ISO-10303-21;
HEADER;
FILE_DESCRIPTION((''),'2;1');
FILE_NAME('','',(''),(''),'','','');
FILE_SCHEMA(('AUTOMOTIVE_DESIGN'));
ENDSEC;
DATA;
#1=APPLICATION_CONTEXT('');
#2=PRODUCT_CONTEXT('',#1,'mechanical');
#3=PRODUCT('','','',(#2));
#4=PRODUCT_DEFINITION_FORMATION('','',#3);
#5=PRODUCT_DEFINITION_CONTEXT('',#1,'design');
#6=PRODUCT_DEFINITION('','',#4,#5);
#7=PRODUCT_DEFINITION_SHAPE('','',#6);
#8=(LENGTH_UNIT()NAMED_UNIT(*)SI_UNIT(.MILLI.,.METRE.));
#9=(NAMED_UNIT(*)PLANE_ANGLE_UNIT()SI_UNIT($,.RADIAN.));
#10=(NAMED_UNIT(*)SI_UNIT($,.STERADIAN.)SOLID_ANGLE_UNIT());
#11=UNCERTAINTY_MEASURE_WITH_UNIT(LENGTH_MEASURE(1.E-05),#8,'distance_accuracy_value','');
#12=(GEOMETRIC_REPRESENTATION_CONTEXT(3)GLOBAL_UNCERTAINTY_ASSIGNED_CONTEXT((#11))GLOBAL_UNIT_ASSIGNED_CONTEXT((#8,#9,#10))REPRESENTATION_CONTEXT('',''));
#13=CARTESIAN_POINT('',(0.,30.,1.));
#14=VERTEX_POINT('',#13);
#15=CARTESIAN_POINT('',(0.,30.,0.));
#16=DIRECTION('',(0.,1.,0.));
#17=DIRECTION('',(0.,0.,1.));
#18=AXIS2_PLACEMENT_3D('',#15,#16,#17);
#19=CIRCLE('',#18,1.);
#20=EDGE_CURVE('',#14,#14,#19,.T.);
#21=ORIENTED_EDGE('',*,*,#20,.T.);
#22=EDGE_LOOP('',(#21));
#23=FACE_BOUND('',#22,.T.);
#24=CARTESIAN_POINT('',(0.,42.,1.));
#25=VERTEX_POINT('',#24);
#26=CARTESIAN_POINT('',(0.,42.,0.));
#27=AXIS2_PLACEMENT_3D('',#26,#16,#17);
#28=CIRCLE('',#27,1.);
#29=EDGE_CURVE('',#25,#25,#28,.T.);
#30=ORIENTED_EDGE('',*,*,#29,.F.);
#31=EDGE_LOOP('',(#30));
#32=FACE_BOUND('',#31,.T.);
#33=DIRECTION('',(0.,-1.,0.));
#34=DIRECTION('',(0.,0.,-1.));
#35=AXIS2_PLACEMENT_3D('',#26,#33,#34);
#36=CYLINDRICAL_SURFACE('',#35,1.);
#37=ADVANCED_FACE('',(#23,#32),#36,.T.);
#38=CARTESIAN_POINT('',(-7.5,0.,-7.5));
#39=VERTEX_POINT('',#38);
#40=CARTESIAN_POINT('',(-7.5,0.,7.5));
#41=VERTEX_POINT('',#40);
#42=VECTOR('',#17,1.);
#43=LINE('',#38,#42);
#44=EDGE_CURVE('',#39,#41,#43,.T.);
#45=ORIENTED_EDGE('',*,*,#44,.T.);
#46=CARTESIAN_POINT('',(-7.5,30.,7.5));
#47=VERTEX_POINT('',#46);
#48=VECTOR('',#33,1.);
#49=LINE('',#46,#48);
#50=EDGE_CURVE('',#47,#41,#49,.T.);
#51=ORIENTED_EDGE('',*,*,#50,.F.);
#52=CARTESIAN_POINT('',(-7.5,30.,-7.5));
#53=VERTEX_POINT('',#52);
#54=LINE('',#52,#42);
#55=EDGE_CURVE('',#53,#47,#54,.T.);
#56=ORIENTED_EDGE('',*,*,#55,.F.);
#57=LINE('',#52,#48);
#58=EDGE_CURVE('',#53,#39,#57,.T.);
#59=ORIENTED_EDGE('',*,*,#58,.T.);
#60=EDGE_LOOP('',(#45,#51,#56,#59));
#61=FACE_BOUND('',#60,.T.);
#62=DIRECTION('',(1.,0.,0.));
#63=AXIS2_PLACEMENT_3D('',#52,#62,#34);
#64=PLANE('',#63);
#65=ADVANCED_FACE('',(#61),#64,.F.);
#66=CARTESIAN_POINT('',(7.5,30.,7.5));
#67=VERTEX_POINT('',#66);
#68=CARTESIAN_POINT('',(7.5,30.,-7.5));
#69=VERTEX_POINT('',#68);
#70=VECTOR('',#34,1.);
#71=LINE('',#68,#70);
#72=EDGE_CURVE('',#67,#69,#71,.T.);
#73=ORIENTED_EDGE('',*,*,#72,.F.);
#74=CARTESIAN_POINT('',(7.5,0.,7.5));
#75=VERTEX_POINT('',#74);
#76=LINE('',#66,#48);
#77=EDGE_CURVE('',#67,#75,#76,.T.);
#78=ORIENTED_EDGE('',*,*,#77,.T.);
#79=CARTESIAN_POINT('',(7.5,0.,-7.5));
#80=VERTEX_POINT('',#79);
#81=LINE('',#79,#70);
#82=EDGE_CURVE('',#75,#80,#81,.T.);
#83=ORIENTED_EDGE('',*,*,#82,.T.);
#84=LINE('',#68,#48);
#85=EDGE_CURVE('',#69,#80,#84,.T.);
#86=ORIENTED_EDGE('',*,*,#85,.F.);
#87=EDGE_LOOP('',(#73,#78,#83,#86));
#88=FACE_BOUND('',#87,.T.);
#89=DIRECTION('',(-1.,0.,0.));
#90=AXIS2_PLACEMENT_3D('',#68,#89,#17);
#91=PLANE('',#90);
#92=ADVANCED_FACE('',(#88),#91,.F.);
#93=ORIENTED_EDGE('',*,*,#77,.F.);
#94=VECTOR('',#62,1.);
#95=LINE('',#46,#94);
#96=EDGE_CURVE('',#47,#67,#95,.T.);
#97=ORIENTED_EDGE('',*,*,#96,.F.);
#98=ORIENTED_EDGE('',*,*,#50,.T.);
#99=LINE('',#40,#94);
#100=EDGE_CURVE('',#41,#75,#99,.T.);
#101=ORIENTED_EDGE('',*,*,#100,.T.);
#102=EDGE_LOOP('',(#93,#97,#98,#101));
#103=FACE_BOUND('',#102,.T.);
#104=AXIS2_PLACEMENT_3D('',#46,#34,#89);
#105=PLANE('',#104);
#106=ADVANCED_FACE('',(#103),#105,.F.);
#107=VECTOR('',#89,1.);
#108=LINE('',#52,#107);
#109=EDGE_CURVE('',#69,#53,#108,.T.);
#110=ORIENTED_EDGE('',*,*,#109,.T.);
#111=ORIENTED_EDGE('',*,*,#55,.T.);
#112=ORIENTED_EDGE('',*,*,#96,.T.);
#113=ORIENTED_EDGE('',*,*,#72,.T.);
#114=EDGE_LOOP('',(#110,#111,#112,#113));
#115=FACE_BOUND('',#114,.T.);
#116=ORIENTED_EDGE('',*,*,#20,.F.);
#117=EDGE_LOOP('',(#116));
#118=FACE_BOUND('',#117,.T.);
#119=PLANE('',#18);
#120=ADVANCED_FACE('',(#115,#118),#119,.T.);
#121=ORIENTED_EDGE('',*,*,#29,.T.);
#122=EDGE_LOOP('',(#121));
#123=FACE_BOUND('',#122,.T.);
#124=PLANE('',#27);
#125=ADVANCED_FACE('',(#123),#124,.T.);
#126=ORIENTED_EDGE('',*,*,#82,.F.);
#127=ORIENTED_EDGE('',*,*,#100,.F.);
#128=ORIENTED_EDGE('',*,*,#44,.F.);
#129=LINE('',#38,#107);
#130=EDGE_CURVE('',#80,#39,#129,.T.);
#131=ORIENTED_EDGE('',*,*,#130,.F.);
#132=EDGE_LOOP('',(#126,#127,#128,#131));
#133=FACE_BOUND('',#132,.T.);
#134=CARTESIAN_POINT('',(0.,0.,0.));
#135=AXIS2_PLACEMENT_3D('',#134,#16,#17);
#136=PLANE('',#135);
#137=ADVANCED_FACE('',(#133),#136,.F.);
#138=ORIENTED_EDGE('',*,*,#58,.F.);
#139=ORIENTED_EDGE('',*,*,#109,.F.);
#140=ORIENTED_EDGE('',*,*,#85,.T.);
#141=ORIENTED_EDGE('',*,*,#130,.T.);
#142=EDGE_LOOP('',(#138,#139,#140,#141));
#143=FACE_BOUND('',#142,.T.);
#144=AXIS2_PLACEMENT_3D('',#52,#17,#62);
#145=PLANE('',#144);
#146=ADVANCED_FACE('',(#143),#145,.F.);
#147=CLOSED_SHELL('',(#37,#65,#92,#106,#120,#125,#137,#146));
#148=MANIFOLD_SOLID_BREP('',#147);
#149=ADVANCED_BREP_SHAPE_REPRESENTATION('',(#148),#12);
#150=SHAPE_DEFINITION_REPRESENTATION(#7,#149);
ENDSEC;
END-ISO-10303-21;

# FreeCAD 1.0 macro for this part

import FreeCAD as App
import Part
import Sketcher
from FreeCAD import Vector


def add_polygon(sketch, points):
    """Adds a closed chain of lines whose ends are joined by coincident constraints."""
    first, n = sketch.GeometryCount, len(points)
    for a, b in zip(points, points[1:] + points[:1]):
        sketch.addGeometry(Part.LineSegment(App.Vector(*a, 0), App.Vector(*b, 0)), False)
    for i in range(n):
        sketch.addConstraint(Sketcher.Constraint("Coincident", first + i, 2, first + (i + 1) % n, 1))

doc = App.newDocument("Part")
body = doc.addObject("PartDesign::Body", "Body")

sketch1 = body.newObject("Sketcher::SketchObject", "Sketch")
sketch1.AttachmentSupport = (doc.getObject("XZ_Plane"), [""])
sketch1.MapMode = "FlatFace"
add_polygon(sketch1, [(-8, -8), (-8, 8), (8, 8), (8, -8)])
sketch1.addConstraint([
    Sketcher.Constraint("Vertical", 0),
    Sketcher.Constraint("Horizontal", 1),
    Sketcher.Constraint("Vertical", 2),
    Sketcher.Constraint("Horizontal", 3),
    Sketcher.Constraint("Symmetric", 0, 2, 2, 2, -1, 1),
    Sketcher.Constraint("Equal", 3, 0),
    Sketcher.Constraint("DistanceX", 1, 1, 1, 2, 15.0),
])
pad1 = body.newObject("PartDesign::Pad", "Pad")
pad1.Profile = sketch1
pad1.Length = 30
pad1.Reversed = True

sketch2 = body.newObject("Sketcher::SketchObject", "Sketch001")
sketch2.AttachmentSupport = (doc.getObject("XZ_Plane"), [""])
sketch2.MapMode = "FlatFace"
sketch2.AttachmentOffset = App.Placement(Vector(0, 0, -30), App.Rotation())
sketch2.addGeometry(Part.Circle(Vector(0, 0, 0), Vector(0, 0, 1), 1), False)
sketch2.addConstraint([
    Sketcher.Constraint("Coincident", 0, 3, -1, 1),
    Sketcher.Constraint("Diameter", 0, 2.0),
])
pad2 = body.newObject("PartDesign::Pad", "Pad001")
pad2.Profile = sketch2
pad2.Length = 12
pad2.Reversed = True

doc.recompute()
